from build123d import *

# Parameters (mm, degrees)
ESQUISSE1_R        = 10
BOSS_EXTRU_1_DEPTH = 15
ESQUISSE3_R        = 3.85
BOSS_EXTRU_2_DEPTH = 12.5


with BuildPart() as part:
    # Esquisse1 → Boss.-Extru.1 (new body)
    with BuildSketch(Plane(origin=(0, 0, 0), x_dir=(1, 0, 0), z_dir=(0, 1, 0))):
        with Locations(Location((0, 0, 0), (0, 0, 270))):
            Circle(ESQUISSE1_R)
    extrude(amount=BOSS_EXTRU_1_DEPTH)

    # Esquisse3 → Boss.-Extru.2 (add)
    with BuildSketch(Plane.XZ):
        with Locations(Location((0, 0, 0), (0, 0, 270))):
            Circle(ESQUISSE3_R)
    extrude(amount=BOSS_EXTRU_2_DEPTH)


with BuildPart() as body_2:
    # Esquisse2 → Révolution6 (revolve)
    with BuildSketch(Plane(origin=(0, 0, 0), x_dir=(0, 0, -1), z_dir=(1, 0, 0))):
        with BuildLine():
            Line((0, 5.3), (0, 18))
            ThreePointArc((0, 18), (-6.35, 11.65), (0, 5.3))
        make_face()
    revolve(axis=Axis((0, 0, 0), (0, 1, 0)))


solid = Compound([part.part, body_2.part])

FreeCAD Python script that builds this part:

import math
import FreeCAD as App
import Part
import Sketcher

doc = App.newDocument("Part")
body = doc.addObject("PartDesign::Body", "Body")

sketch1 = body.newObject("Sketcher::SketchObject", "Sketch")
sketch1.AttachmentSupport = (doc.getObject("XZ_Plane"), [""])
sketch1.MapMode = "FlatFace"
sketch1.addGeometry(Part.Circle(App.Vector(0, 0, 0), App.Vector(0, 0, 1), 10), False)
sketch1.addConstraint([
    Sketcher.Constraint("Coincident", 0, 3, -1, 1),
    Sketcher.Constraint("Diameter", 0, 20.0),
])
pad1 = body.newObject("PartDesign::Pad", "Pad")
pad1.Profile = sketch1
pad1.Length = 15
pad1.Reversed = True

sketch2 = body.newObject("Sketcher::SketchObject", "Sketch001")
sketch2.AttachmentSupport = (doc.getObject("XZ_Plane"), [""])
sketch2.MapMode = "FlatFace"
sketch2.addGeometry(Part.Circle(App.Vector(0, 0, 0), App.Vector(0, 0, 1), 3.9), False)
sketch2.addConstraint([
    Sketcher.Constraint("Coincident", 0, 3, -1, 1),
    Sketcher.Constraint("Diameter", 0, 7.7),
])
pad2 = body.newObject("PartDesign::Pad", "Pad001")
pad2.Profile = sketch2
pad2.Length = 12.5
body2 = doc.addObject("PartDesign::Body", "Body001")

sketch3 = body2.newObject("Sketcher::SketchObject", "Sketch002")
sketch3.AttachmentSupport = (doc.getObject("YZ_Plane001"), [""])
sketch3.MapMode = "FlatFace"
sketch3.addGeometry([
    Part.LineSegment(App.Vector(5, 0, 0), App.Vector(18, 0, 0)),
    Part.ArcOfCircle(Part.Circle(App.Vector(12, 0, 0), App.Vector(0, 0, 1), 6), math.radians(0), math.radians(180)),
], False)
sketch3.addConstraint([
    Sketcher.Constraint("Coincident", 0, 1, 1, 2),
    Sketcher.Constraint("Coincident", 1, 1, 0, 2),
    Sketcher.Constraint("Horizontal", 0),
    Sketcher.Constraint("PointOnObject", 1, 3, -1),
    Sketcher.Constraint("PointOnObject", 0, 1, -1),
    Sketcher.Constraint("Radius", 1, 6.35),
    Sketcher.Constraint("DistanceX", -1, 1, 1, 1, 18.0),
])
revolution = body2.newObject("PartDesign::Revolution", "Revolution")
revolution.Profile = sketch3
revolution.ReferenceAxis = (sketch3, ["H_Axis"])
revolution.Angle = 360

doc.recompute()
